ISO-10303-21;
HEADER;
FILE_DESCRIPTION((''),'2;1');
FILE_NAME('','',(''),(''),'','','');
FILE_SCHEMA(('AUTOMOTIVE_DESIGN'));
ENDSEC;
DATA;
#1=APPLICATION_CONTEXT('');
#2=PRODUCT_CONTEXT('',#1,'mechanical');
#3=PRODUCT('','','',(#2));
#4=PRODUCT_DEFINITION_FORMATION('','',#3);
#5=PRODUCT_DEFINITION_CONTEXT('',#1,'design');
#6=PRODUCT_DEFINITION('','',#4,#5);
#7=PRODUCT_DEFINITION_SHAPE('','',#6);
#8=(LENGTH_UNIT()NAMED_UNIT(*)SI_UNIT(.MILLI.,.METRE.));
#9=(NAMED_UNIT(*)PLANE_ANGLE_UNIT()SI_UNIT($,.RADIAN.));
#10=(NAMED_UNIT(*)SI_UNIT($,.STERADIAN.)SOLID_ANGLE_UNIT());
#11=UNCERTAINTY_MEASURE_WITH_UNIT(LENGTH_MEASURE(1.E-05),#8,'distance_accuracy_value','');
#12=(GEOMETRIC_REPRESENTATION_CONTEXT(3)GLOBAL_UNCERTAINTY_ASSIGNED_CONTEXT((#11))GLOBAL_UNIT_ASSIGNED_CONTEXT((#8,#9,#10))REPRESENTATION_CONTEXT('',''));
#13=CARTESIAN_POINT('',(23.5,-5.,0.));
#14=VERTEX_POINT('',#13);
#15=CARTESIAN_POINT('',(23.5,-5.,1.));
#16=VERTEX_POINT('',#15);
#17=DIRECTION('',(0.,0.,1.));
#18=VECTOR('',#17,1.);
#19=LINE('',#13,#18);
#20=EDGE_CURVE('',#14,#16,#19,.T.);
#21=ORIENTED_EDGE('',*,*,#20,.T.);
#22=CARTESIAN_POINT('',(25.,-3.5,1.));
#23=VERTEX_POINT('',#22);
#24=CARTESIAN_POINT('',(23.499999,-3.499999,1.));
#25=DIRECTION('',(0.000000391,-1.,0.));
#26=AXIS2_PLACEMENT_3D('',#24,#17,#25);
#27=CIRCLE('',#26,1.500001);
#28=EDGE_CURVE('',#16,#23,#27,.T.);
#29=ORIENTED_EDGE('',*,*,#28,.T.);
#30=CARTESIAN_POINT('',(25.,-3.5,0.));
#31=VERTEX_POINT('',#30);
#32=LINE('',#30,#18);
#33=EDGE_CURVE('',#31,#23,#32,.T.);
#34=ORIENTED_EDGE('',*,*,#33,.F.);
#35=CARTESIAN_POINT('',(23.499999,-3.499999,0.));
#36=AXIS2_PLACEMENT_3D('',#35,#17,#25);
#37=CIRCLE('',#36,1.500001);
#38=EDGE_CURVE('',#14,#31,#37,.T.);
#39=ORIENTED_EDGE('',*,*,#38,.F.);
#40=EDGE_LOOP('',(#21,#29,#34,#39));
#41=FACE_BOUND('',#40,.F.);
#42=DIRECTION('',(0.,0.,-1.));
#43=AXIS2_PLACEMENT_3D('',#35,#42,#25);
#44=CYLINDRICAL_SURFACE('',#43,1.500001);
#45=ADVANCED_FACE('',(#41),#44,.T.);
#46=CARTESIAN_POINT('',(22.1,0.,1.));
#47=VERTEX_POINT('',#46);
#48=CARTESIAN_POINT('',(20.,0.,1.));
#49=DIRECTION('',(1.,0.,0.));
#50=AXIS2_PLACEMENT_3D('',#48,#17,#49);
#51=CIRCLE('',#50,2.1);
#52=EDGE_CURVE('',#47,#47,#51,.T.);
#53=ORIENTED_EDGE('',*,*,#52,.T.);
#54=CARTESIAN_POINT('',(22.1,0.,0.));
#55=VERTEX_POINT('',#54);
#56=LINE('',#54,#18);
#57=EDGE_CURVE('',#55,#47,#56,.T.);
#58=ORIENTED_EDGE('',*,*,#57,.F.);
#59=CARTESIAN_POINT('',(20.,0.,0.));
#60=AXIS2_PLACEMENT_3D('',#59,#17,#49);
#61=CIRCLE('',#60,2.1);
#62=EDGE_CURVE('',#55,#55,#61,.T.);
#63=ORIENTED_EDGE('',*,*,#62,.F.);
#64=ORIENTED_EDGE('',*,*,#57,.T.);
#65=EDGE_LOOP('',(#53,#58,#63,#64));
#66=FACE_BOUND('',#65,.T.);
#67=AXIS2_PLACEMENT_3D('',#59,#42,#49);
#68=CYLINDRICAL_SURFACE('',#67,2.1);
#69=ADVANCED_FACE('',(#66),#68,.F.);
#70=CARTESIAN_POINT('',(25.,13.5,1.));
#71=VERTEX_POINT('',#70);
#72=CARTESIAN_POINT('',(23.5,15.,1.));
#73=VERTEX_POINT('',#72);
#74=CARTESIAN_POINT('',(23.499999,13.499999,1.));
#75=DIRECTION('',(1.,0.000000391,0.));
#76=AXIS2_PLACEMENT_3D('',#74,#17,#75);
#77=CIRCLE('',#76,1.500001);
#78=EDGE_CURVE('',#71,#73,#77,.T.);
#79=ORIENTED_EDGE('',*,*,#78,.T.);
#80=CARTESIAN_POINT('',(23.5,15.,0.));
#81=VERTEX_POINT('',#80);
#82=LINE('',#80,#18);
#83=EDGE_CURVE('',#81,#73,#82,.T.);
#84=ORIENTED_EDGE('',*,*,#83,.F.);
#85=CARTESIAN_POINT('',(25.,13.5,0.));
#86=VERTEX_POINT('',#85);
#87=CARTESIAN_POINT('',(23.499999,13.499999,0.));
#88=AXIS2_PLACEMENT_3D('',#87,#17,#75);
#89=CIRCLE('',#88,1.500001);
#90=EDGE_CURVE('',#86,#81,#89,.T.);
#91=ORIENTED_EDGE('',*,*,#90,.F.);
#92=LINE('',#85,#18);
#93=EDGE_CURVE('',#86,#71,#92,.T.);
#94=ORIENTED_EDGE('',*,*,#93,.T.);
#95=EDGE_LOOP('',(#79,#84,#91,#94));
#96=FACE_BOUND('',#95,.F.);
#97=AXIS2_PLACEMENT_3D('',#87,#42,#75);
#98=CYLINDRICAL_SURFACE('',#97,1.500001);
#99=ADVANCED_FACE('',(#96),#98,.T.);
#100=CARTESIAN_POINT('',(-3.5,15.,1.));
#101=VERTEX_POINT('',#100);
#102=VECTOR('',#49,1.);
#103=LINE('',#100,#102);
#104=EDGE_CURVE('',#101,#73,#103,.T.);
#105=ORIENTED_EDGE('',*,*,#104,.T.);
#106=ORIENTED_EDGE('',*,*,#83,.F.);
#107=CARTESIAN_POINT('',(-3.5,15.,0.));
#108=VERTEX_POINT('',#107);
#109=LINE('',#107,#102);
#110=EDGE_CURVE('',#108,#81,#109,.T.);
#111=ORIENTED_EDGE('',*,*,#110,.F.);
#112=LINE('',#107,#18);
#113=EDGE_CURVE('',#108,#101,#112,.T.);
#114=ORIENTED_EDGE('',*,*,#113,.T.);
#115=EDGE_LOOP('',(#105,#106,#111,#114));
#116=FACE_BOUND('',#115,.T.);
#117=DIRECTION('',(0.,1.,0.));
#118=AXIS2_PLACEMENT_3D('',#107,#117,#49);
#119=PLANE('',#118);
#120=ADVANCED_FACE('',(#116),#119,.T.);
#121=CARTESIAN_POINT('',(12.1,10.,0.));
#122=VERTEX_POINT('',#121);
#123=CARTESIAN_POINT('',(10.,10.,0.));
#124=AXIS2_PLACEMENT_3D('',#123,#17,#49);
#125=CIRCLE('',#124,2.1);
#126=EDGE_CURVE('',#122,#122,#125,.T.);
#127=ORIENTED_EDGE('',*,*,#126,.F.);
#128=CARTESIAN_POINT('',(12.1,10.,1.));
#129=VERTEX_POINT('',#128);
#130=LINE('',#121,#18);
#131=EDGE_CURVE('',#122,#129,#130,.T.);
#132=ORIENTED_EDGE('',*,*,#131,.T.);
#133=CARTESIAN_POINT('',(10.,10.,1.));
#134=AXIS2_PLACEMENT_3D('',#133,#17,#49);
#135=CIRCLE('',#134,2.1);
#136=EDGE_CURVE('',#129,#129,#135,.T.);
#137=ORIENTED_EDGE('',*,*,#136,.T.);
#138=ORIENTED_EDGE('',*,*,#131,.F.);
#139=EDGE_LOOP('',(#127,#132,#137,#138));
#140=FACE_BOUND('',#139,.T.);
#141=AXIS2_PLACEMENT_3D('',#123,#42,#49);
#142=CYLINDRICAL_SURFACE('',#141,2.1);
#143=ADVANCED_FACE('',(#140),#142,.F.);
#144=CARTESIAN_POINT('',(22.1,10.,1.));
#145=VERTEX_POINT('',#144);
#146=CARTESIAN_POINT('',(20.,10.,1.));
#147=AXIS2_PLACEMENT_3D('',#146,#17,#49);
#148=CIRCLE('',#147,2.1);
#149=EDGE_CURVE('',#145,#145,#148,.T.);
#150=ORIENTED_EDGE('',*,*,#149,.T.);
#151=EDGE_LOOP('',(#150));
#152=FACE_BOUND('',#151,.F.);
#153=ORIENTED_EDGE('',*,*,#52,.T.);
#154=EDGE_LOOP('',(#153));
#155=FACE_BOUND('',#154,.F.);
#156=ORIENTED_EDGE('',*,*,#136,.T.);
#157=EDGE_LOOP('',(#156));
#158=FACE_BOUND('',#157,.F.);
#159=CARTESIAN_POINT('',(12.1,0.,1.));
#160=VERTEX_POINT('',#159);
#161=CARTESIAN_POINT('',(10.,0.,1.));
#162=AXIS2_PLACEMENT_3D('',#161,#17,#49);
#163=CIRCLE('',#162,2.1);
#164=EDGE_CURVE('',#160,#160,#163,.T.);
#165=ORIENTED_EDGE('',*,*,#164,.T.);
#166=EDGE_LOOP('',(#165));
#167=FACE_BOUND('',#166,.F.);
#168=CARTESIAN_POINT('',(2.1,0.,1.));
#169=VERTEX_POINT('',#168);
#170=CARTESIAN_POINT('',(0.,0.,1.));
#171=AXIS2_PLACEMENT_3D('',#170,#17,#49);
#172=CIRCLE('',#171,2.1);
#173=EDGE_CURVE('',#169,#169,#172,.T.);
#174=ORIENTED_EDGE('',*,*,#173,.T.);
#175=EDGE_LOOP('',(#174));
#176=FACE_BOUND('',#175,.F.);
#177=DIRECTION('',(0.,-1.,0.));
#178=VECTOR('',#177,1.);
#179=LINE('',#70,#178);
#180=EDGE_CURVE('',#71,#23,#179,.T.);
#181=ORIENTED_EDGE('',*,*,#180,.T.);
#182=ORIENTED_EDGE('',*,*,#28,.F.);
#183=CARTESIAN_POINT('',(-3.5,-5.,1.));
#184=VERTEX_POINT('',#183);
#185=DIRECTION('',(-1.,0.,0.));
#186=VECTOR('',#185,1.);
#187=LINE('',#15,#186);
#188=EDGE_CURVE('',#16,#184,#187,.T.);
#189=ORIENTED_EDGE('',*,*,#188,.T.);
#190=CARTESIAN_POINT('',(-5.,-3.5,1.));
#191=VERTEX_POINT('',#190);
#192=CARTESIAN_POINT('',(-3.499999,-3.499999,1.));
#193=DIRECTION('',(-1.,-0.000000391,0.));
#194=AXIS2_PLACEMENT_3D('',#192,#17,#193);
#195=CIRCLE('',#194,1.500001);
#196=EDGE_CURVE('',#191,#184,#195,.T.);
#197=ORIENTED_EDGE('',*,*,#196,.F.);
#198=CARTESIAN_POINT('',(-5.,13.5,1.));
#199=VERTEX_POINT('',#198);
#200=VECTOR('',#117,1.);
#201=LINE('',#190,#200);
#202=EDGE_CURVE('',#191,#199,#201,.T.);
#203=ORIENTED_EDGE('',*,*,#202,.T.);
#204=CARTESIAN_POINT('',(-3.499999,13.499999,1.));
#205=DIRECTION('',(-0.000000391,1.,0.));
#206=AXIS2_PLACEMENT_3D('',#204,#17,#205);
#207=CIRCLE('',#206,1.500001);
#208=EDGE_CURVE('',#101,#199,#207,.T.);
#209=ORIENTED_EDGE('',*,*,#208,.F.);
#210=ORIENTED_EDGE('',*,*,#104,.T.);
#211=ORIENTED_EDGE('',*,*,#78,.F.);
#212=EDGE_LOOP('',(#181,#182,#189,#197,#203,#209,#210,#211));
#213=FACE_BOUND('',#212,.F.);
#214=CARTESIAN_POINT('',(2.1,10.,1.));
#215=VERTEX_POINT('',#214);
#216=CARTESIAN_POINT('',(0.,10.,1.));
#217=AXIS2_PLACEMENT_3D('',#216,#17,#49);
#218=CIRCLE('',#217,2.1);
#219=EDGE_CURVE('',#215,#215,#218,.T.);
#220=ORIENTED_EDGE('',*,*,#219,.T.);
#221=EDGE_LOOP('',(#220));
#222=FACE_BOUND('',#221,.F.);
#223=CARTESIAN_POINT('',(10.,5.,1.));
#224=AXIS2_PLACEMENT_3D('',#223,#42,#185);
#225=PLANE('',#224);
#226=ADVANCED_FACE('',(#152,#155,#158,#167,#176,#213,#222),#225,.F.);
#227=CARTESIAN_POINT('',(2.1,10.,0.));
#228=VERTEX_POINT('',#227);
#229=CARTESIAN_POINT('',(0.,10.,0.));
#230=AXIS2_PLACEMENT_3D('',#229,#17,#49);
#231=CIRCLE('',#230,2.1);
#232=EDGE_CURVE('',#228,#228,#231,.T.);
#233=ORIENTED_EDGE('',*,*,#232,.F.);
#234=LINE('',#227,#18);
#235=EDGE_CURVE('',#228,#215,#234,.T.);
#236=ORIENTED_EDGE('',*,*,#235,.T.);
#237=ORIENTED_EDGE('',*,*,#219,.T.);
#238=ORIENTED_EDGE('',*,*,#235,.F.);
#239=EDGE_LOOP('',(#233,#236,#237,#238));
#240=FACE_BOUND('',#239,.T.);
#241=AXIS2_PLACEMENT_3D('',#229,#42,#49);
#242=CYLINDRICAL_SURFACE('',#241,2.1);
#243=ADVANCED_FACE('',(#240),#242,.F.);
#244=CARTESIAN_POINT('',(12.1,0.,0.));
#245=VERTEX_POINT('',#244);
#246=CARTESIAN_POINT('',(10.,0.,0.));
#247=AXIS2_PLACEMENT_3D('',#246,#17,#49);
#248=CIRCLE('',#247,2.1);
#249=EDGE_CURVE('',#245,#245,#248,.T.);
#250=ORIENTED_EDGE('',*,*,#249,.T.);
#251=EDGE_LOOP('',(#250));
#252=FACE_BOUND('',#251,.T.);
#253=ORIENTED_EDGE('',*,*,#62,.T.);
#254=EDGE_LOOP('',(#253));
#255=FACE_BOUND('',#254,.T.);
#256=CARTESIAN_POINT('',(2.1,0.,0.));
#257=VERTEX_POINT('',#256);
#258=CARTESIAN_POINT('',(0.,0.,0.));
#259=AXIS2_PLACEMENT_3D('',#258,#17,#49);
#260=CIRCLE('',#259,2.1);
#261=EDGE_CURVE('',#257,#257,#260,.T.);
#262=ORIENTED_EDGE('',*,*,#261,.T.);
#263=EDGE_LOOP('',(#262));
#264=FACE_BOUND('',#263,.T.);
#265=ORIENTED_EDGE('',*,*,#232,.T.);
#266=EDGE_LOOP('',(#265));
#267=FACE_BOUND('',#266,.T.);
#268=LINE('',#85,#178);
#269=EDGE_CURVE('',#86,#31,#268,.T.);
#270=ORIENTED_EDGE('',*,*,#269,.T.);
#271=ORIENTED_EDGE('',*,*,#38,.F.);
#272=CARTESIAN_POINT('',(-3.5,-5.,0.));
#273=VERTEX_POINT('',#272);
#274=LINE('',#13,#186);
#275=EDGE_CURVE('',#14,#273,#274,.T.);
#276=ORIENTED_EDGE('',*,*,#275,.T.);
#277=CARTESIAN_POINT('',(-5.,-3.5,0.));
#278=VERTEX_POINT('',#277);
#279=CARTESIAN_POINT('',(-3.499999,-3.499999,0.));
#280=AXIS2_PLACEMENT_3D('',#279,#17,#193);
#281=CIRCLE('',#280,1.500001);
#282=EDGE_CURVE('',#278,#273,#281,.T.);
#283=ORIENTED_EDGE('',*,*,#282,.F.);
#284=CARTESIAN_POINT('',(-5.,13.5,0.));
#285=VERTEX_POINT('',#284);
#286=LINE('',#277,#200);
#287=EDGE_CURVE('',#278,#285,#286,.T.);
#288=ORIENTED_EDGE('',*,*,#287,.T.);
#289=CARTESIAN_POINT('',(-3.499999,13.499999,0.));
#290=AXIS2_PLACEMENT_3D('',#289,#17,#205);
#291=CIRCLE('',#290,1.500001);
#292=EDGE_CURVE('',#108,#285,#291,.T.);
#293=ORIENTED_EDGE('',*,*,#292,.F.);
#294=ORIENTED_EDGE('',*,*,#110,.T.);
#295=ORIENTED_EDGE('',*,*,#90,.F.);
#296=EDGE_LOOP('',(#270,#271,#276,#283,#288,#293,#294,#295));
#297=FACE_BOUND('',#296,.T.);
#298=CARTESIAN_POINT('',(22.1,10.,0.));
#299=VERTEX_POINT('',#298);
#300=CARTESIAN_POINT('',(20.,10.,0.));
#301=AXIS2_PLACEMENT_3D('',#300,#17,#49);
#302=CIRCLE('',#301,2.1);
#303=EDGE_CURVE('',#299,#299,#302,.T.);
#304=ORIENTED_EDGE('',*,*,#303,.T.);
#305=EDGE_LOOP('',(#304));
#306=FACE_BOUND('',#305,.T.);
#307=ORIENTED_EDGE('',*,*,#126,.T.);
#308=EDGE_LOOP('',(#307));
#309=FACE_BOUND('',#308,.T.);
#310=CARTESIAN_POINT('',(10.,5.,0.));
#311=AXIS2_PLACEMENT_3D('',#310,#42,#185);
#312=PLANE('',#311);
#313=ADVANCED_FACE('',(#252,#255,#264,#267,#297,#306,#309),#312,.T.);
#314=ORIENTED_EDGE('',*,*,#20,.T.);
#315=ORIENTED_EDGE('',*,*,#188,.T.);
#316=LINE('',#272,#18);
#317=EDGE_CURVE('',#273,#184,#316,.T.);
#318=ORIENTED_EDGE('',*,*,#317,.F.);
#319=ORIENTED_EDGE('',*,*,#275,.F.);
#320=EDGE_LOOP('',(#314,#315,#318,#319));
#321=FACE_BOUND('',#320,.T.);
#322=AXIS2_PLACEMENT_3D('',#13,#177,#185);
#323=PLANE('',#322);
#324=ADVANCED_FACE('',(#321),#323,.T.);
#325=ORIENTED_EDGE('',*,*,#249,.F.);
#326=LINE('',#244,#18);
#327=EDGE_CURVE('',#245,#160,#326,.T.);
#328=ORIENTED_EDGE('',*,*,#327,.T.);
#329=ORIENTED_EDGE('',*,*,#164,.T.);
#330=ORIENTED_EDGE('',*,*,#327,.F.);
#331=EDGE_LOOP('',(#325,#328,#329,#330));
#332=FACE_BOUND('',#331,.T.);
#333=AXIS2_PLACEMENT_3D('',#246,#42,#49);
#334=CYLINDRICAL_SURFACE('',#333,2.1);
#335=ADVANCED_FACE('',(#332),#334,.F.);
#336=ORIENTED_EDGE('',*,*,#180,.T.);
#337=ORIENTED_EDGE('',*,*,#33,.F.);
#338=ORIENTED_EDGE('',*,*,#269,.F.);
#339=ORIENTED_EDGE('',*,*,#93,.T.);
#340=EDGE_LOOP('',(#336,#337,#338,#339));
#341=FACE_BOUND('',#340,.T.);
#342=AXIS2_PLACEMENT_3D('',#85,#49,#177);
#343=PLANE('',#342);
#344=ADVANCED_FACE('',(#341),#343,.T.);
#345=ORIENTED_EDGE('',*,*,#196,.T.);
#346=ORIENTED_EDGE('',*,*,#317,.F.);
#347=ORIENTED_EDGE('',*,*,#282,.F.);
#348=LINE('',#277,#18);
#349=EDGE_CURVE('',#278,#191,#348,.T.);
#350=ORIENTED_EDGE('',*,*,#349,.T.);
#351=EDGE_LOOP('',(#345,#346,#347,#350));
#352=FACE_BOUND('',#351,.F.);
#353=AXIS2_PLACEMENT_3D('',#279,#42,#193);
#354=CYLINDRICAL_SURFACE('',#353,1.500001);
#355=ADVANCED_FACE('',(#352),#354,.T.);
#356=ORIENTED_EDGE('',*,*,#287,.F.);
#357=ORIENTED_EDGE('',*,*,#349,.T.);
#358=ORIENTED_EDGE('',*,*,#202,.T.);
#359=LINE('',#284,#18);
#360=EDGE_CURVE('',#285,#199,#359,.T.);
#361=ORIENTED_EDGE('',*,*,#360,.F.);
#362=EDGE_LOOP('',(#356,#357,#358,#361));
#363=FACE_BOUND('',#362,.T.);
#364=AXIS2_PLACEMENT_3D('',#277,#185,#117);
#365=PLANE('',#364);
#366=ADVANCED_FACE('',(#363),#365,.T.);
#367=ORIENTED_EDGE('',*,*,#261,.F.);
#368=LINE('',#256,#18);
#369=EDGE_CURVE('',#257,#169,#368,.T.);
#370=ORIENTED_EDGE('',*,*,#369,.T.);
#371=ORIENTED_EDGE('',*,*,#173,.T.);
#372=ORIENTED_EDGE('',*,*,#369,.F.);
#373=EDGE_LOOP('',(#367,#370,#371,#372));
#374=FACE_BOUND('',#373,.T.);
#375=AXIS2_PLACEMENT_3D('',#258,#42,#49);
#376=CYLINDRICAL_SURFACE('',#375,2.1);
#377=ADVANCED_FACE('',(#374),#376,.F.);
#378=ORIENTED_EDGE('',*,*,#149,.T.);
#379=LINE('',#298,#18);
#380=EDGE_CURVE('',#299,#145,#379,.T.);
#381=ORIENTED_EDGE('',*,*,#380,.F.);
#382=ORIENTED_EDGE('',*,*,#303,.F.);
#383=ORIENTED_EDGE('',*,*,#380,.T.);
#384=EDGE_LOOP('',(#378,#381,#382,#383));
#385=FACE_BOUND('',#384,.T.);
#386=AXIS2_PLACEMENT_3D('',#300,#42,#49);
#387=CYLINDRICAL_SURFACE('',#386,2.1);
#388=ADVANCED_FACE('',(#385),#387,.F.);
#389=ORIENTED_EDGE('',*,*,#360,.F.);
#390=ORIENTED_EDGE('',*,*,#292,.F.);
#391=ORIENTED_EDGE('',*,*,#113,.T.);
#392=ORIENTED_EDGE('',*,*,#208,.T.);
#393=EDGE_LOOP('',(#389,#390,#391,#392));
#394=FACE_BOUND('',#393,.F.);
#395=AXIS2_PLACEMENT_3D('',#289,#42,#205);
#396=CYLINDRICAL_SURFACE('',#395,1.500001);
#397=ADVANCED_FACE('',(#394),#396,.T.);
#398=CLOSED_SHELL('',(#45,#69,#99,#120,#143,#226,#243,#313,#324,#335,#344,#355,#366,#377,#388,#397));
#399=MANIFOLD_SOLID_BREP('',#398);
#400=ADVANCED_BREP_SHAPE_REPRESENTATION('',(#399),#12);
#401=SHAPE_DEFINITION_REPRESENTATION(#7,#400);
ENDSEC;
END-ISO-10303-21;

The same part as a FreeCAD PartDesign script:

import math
import FreeCAD as App
import Part
import Sketcher
Q = App.Units.Quantity

doc = App.newDocument("Part")
params = doc.addObject("Spreadsheet::Sheet", "Params")
for row, (alias, value) in enumerate([
    ("sketch1_diameter", "4.2 mm"),
    ("sketch1_radius", "1.500001 mm"),
    ("sketch1_width", "27 mm"),
    ("sketch1_height", "17 mm"),
    ("pad1_length", "1 mm"),
], start=1):
    params.set(f"A{row}", alias)
    params.set(f"B{row}", "=" + value)
    params.setAlias(f"B{row}", alias)

body = doc.addObject("PartDesign::Body", "Body")

# Sketch on XY plane
sketch1 = body.newObject("Sketcher::SketchObject", "Sketch")
sketch1.AttachmentSupport = (doc.getObject("XY_Plane"), [""])
sketch1.MapMode = "FlatFace"
sketch1.addGeometry(Part.LineSegment(App.Vector(23.5, 15, 0), App.Vector(-3.5, 15, 0)), False)
sketch1.addGeometry(Part.ArcOfCircle(Part.Circle(App.Vector(-3.5, 13.5, 0), App.Vector(0, 0, 1), 1.5), math.radians(90), math.radians(180)), False)
sketch1.addGeometry(Part.LineSegment(App.Vector(-5, 13.5, 0), App.Vector(-5, -3.5, 0)), False)
sketch1.addGeometry(Part.ArcOfCircle(Part.Circle(App.Vector(-3.5, -3.5, 0), App.Vector(0, 0, 1), 1.5), math.radians(-180), math.radians(-90)), False)
sketch1.addGeometry(Part.LineSegment(App.Vector(-3.5, -5, 0), App.Vector(23.5, -5, 0)), False)
sketch1.addGeometry(Part.ArcOfCircle(Part.Circle(App.Vector(23.5, -3.5, 0), App.Vector(0, 0, 1), 1.5), math.radians(-90), math.radians(0)), False)
sketch1.addGeometry(Part.LineSegment(App.Vector(25, -3.5, 0), App.Vector(25, 13.5, 0)), False)
sketch1.addGeometry(Part.ArcOfCircle(Part.Circle(App.Vector(23.5, 13.5, 0), App.Vector(0, 0, 1), 1.5), math.radians(0), math.radians(90)), False)
sketch1.addGeometry(Part.Circle(App.Vector(20, 0, 0), App.Vector(0, 0, 1), 2.1), False)
sketch1.addGeometry(Part.Circle(App.Vector(10, 0, 0), App.Vector(0, 0, 1), 2.1), False)
sketch1.addGeometry(Part.Circle(App.Vector(0, 0, 0), App.Vector(0, 0, 1), 2.1), False)
sketch1.addGeometry(Part.Circle(App.Vector(20, 10, 0), App.Vector(0, 0, 1), 2.1), False)
sketch1.addGeometry(Part.Circle(App.Vector(10, 10, 0), App.Vector(0, 0, 1), 2.1), False)
sketch1.addGeometry(Part.Circle(App.Vector(0, 10, 0), App.Vector(0, 0, 1), 2.1), False)
sketch1.addConstraint(Sketcher.Constraint("Tangent", 0, 2, 1, 1))
sketch1.addConstraint(Sketcher.Constraint("Tangent", 1, 2, 2, 1))
sketch1.addConstraint(Sketcher.Constraint("Tangent", 2, 2, 3, 1))
sketch1.addConstraint(Sketcher.Constraint("Tangent", 3, 2, 4, 1))
sketch1.addConstraint(Sketcher.Constraint("Tangent", 4, 2, 5, 1))
sketch1.addConstraint(Sketcher.Constraint("Tangent", 5, 2, 6, 1))
sketch1.addConstraint(Sketcher.Constraint("Tangent", 6, 2, 7, 1))
sketch1.addConstraint(Sketcher.Constraint("Tangent", 7, 2, 0, 1))
sketch1.addConstraint(Sketcher.Constraint("Horizontal", 0))
sketch1.addConstraint(Sketcher.Constraint("Vertical", 2))
sketch1.addConstraint(Sketcher.Constraint("Horizontal", 4))
sketch1.addConstraint(Sketcher.Constraint("Vertical", 6))
sketch1.addConstraint(Sketcher.Constraint("Coincident", 10, 3, -1, 1))
sketch1.addConstraint(Sketcher.Constraint("Equal", 1, 3))
sketch1.addConstraint(Sketcher.Constraint("Equal", 3, 5))
sketch1.addConstraint(Sketcher.Constraint("Equal", 5, 7))
sketch1.addConstraint(Sketcher.Constraint("Equal", 8, 9))
sketch1.addConstraint(Sketcher.Constraint("Equal", 9, 10))
sketch1.addConstraint(Sketcher.Constraint("Equal", 10, 11))
sketch1.addConstraint(Sketcher.Constraint("Equal", 11, 12))
sketch1.addConstraint(Sketcher.Constraint("Equal", 12, 13))
sketch1.addConstraint(Sketcher.Constraint("PointOnObject", 8, 3, -1))
sketch1.addConstraint(Sketcher.Constraint("PointOnObject", 9, 3, -1))
sketch1.addConstraint(Sketcher.Constraint("PointOnObject", 13, 3, -2))
sketch1.addConstraint(Sketcher.Constraint("Horizontal", 11, 3, 12, 3))
sketch1.addConstraint(Sketcher.Constraint("Horizontal", 12, 3, 13, 3))
sketch1.addConstraint(Sketcher.Constraint("Vertical", 8, 3, 11, 3))
sketch1.addConstraint(Sketcher.Constraint("Vertical", 9, 3, 12, 3))
sketch1.addConstraint(Sketcher.Constraint("Diameter", 8, Q("4.2 mm")))
sketch1.addConstraint(Sketcher.Constraint("Radius", 1, Q("1.500001 mm")))
sketch1.addConstraint(Sketcher.Constraint("DistanceX", 0, 2, 0, 1, Q("27 mm")))
sketch1.addConstraint(Sketcher.Constraint("DistanceY", 2, 2, 2, 1, Q("17 mm")))
sketch1.addConstraint(Sketcher.Constraint("DistanceX", -1, 1, 8, 3, Q("20 mm")))
sketch1.addConstraint(Sketcher.Constraint("DistanceX", -1, 1, 9, 3, Q("10 mm")))
sketch1.addConstraint(Sketcher.Constraint("DistanceY", -1, 1, 11, 3, Q("10 mm")))
sketch1.addConstraint(Sketcher.Constraint("DistanceY", -1, 1, 0, 2, Q("15 mm")))
sketch1.addConstraint(Sketcher.Constraint("DistanceX", 1, 2, -1, 1, Q("5 mm")))
sketch1.setExpression("Constraints[28]", "Params.sketch1_diameter")
sketch1.setExpression("Constraints[29]", "Params.sketch1_radius")
sketch1.setExpression("Constraints[30]", "Params.sketch1_width")
sketch1.setExpression("Constraints[31]", "Params.sketch1_height")
pad1 = body.newObject("PartDesign::Pad", "Pad")
pad1.Profile = sketch1
pad1.setExpression("Length", "Params.pad1_length")

doc.recompute()
